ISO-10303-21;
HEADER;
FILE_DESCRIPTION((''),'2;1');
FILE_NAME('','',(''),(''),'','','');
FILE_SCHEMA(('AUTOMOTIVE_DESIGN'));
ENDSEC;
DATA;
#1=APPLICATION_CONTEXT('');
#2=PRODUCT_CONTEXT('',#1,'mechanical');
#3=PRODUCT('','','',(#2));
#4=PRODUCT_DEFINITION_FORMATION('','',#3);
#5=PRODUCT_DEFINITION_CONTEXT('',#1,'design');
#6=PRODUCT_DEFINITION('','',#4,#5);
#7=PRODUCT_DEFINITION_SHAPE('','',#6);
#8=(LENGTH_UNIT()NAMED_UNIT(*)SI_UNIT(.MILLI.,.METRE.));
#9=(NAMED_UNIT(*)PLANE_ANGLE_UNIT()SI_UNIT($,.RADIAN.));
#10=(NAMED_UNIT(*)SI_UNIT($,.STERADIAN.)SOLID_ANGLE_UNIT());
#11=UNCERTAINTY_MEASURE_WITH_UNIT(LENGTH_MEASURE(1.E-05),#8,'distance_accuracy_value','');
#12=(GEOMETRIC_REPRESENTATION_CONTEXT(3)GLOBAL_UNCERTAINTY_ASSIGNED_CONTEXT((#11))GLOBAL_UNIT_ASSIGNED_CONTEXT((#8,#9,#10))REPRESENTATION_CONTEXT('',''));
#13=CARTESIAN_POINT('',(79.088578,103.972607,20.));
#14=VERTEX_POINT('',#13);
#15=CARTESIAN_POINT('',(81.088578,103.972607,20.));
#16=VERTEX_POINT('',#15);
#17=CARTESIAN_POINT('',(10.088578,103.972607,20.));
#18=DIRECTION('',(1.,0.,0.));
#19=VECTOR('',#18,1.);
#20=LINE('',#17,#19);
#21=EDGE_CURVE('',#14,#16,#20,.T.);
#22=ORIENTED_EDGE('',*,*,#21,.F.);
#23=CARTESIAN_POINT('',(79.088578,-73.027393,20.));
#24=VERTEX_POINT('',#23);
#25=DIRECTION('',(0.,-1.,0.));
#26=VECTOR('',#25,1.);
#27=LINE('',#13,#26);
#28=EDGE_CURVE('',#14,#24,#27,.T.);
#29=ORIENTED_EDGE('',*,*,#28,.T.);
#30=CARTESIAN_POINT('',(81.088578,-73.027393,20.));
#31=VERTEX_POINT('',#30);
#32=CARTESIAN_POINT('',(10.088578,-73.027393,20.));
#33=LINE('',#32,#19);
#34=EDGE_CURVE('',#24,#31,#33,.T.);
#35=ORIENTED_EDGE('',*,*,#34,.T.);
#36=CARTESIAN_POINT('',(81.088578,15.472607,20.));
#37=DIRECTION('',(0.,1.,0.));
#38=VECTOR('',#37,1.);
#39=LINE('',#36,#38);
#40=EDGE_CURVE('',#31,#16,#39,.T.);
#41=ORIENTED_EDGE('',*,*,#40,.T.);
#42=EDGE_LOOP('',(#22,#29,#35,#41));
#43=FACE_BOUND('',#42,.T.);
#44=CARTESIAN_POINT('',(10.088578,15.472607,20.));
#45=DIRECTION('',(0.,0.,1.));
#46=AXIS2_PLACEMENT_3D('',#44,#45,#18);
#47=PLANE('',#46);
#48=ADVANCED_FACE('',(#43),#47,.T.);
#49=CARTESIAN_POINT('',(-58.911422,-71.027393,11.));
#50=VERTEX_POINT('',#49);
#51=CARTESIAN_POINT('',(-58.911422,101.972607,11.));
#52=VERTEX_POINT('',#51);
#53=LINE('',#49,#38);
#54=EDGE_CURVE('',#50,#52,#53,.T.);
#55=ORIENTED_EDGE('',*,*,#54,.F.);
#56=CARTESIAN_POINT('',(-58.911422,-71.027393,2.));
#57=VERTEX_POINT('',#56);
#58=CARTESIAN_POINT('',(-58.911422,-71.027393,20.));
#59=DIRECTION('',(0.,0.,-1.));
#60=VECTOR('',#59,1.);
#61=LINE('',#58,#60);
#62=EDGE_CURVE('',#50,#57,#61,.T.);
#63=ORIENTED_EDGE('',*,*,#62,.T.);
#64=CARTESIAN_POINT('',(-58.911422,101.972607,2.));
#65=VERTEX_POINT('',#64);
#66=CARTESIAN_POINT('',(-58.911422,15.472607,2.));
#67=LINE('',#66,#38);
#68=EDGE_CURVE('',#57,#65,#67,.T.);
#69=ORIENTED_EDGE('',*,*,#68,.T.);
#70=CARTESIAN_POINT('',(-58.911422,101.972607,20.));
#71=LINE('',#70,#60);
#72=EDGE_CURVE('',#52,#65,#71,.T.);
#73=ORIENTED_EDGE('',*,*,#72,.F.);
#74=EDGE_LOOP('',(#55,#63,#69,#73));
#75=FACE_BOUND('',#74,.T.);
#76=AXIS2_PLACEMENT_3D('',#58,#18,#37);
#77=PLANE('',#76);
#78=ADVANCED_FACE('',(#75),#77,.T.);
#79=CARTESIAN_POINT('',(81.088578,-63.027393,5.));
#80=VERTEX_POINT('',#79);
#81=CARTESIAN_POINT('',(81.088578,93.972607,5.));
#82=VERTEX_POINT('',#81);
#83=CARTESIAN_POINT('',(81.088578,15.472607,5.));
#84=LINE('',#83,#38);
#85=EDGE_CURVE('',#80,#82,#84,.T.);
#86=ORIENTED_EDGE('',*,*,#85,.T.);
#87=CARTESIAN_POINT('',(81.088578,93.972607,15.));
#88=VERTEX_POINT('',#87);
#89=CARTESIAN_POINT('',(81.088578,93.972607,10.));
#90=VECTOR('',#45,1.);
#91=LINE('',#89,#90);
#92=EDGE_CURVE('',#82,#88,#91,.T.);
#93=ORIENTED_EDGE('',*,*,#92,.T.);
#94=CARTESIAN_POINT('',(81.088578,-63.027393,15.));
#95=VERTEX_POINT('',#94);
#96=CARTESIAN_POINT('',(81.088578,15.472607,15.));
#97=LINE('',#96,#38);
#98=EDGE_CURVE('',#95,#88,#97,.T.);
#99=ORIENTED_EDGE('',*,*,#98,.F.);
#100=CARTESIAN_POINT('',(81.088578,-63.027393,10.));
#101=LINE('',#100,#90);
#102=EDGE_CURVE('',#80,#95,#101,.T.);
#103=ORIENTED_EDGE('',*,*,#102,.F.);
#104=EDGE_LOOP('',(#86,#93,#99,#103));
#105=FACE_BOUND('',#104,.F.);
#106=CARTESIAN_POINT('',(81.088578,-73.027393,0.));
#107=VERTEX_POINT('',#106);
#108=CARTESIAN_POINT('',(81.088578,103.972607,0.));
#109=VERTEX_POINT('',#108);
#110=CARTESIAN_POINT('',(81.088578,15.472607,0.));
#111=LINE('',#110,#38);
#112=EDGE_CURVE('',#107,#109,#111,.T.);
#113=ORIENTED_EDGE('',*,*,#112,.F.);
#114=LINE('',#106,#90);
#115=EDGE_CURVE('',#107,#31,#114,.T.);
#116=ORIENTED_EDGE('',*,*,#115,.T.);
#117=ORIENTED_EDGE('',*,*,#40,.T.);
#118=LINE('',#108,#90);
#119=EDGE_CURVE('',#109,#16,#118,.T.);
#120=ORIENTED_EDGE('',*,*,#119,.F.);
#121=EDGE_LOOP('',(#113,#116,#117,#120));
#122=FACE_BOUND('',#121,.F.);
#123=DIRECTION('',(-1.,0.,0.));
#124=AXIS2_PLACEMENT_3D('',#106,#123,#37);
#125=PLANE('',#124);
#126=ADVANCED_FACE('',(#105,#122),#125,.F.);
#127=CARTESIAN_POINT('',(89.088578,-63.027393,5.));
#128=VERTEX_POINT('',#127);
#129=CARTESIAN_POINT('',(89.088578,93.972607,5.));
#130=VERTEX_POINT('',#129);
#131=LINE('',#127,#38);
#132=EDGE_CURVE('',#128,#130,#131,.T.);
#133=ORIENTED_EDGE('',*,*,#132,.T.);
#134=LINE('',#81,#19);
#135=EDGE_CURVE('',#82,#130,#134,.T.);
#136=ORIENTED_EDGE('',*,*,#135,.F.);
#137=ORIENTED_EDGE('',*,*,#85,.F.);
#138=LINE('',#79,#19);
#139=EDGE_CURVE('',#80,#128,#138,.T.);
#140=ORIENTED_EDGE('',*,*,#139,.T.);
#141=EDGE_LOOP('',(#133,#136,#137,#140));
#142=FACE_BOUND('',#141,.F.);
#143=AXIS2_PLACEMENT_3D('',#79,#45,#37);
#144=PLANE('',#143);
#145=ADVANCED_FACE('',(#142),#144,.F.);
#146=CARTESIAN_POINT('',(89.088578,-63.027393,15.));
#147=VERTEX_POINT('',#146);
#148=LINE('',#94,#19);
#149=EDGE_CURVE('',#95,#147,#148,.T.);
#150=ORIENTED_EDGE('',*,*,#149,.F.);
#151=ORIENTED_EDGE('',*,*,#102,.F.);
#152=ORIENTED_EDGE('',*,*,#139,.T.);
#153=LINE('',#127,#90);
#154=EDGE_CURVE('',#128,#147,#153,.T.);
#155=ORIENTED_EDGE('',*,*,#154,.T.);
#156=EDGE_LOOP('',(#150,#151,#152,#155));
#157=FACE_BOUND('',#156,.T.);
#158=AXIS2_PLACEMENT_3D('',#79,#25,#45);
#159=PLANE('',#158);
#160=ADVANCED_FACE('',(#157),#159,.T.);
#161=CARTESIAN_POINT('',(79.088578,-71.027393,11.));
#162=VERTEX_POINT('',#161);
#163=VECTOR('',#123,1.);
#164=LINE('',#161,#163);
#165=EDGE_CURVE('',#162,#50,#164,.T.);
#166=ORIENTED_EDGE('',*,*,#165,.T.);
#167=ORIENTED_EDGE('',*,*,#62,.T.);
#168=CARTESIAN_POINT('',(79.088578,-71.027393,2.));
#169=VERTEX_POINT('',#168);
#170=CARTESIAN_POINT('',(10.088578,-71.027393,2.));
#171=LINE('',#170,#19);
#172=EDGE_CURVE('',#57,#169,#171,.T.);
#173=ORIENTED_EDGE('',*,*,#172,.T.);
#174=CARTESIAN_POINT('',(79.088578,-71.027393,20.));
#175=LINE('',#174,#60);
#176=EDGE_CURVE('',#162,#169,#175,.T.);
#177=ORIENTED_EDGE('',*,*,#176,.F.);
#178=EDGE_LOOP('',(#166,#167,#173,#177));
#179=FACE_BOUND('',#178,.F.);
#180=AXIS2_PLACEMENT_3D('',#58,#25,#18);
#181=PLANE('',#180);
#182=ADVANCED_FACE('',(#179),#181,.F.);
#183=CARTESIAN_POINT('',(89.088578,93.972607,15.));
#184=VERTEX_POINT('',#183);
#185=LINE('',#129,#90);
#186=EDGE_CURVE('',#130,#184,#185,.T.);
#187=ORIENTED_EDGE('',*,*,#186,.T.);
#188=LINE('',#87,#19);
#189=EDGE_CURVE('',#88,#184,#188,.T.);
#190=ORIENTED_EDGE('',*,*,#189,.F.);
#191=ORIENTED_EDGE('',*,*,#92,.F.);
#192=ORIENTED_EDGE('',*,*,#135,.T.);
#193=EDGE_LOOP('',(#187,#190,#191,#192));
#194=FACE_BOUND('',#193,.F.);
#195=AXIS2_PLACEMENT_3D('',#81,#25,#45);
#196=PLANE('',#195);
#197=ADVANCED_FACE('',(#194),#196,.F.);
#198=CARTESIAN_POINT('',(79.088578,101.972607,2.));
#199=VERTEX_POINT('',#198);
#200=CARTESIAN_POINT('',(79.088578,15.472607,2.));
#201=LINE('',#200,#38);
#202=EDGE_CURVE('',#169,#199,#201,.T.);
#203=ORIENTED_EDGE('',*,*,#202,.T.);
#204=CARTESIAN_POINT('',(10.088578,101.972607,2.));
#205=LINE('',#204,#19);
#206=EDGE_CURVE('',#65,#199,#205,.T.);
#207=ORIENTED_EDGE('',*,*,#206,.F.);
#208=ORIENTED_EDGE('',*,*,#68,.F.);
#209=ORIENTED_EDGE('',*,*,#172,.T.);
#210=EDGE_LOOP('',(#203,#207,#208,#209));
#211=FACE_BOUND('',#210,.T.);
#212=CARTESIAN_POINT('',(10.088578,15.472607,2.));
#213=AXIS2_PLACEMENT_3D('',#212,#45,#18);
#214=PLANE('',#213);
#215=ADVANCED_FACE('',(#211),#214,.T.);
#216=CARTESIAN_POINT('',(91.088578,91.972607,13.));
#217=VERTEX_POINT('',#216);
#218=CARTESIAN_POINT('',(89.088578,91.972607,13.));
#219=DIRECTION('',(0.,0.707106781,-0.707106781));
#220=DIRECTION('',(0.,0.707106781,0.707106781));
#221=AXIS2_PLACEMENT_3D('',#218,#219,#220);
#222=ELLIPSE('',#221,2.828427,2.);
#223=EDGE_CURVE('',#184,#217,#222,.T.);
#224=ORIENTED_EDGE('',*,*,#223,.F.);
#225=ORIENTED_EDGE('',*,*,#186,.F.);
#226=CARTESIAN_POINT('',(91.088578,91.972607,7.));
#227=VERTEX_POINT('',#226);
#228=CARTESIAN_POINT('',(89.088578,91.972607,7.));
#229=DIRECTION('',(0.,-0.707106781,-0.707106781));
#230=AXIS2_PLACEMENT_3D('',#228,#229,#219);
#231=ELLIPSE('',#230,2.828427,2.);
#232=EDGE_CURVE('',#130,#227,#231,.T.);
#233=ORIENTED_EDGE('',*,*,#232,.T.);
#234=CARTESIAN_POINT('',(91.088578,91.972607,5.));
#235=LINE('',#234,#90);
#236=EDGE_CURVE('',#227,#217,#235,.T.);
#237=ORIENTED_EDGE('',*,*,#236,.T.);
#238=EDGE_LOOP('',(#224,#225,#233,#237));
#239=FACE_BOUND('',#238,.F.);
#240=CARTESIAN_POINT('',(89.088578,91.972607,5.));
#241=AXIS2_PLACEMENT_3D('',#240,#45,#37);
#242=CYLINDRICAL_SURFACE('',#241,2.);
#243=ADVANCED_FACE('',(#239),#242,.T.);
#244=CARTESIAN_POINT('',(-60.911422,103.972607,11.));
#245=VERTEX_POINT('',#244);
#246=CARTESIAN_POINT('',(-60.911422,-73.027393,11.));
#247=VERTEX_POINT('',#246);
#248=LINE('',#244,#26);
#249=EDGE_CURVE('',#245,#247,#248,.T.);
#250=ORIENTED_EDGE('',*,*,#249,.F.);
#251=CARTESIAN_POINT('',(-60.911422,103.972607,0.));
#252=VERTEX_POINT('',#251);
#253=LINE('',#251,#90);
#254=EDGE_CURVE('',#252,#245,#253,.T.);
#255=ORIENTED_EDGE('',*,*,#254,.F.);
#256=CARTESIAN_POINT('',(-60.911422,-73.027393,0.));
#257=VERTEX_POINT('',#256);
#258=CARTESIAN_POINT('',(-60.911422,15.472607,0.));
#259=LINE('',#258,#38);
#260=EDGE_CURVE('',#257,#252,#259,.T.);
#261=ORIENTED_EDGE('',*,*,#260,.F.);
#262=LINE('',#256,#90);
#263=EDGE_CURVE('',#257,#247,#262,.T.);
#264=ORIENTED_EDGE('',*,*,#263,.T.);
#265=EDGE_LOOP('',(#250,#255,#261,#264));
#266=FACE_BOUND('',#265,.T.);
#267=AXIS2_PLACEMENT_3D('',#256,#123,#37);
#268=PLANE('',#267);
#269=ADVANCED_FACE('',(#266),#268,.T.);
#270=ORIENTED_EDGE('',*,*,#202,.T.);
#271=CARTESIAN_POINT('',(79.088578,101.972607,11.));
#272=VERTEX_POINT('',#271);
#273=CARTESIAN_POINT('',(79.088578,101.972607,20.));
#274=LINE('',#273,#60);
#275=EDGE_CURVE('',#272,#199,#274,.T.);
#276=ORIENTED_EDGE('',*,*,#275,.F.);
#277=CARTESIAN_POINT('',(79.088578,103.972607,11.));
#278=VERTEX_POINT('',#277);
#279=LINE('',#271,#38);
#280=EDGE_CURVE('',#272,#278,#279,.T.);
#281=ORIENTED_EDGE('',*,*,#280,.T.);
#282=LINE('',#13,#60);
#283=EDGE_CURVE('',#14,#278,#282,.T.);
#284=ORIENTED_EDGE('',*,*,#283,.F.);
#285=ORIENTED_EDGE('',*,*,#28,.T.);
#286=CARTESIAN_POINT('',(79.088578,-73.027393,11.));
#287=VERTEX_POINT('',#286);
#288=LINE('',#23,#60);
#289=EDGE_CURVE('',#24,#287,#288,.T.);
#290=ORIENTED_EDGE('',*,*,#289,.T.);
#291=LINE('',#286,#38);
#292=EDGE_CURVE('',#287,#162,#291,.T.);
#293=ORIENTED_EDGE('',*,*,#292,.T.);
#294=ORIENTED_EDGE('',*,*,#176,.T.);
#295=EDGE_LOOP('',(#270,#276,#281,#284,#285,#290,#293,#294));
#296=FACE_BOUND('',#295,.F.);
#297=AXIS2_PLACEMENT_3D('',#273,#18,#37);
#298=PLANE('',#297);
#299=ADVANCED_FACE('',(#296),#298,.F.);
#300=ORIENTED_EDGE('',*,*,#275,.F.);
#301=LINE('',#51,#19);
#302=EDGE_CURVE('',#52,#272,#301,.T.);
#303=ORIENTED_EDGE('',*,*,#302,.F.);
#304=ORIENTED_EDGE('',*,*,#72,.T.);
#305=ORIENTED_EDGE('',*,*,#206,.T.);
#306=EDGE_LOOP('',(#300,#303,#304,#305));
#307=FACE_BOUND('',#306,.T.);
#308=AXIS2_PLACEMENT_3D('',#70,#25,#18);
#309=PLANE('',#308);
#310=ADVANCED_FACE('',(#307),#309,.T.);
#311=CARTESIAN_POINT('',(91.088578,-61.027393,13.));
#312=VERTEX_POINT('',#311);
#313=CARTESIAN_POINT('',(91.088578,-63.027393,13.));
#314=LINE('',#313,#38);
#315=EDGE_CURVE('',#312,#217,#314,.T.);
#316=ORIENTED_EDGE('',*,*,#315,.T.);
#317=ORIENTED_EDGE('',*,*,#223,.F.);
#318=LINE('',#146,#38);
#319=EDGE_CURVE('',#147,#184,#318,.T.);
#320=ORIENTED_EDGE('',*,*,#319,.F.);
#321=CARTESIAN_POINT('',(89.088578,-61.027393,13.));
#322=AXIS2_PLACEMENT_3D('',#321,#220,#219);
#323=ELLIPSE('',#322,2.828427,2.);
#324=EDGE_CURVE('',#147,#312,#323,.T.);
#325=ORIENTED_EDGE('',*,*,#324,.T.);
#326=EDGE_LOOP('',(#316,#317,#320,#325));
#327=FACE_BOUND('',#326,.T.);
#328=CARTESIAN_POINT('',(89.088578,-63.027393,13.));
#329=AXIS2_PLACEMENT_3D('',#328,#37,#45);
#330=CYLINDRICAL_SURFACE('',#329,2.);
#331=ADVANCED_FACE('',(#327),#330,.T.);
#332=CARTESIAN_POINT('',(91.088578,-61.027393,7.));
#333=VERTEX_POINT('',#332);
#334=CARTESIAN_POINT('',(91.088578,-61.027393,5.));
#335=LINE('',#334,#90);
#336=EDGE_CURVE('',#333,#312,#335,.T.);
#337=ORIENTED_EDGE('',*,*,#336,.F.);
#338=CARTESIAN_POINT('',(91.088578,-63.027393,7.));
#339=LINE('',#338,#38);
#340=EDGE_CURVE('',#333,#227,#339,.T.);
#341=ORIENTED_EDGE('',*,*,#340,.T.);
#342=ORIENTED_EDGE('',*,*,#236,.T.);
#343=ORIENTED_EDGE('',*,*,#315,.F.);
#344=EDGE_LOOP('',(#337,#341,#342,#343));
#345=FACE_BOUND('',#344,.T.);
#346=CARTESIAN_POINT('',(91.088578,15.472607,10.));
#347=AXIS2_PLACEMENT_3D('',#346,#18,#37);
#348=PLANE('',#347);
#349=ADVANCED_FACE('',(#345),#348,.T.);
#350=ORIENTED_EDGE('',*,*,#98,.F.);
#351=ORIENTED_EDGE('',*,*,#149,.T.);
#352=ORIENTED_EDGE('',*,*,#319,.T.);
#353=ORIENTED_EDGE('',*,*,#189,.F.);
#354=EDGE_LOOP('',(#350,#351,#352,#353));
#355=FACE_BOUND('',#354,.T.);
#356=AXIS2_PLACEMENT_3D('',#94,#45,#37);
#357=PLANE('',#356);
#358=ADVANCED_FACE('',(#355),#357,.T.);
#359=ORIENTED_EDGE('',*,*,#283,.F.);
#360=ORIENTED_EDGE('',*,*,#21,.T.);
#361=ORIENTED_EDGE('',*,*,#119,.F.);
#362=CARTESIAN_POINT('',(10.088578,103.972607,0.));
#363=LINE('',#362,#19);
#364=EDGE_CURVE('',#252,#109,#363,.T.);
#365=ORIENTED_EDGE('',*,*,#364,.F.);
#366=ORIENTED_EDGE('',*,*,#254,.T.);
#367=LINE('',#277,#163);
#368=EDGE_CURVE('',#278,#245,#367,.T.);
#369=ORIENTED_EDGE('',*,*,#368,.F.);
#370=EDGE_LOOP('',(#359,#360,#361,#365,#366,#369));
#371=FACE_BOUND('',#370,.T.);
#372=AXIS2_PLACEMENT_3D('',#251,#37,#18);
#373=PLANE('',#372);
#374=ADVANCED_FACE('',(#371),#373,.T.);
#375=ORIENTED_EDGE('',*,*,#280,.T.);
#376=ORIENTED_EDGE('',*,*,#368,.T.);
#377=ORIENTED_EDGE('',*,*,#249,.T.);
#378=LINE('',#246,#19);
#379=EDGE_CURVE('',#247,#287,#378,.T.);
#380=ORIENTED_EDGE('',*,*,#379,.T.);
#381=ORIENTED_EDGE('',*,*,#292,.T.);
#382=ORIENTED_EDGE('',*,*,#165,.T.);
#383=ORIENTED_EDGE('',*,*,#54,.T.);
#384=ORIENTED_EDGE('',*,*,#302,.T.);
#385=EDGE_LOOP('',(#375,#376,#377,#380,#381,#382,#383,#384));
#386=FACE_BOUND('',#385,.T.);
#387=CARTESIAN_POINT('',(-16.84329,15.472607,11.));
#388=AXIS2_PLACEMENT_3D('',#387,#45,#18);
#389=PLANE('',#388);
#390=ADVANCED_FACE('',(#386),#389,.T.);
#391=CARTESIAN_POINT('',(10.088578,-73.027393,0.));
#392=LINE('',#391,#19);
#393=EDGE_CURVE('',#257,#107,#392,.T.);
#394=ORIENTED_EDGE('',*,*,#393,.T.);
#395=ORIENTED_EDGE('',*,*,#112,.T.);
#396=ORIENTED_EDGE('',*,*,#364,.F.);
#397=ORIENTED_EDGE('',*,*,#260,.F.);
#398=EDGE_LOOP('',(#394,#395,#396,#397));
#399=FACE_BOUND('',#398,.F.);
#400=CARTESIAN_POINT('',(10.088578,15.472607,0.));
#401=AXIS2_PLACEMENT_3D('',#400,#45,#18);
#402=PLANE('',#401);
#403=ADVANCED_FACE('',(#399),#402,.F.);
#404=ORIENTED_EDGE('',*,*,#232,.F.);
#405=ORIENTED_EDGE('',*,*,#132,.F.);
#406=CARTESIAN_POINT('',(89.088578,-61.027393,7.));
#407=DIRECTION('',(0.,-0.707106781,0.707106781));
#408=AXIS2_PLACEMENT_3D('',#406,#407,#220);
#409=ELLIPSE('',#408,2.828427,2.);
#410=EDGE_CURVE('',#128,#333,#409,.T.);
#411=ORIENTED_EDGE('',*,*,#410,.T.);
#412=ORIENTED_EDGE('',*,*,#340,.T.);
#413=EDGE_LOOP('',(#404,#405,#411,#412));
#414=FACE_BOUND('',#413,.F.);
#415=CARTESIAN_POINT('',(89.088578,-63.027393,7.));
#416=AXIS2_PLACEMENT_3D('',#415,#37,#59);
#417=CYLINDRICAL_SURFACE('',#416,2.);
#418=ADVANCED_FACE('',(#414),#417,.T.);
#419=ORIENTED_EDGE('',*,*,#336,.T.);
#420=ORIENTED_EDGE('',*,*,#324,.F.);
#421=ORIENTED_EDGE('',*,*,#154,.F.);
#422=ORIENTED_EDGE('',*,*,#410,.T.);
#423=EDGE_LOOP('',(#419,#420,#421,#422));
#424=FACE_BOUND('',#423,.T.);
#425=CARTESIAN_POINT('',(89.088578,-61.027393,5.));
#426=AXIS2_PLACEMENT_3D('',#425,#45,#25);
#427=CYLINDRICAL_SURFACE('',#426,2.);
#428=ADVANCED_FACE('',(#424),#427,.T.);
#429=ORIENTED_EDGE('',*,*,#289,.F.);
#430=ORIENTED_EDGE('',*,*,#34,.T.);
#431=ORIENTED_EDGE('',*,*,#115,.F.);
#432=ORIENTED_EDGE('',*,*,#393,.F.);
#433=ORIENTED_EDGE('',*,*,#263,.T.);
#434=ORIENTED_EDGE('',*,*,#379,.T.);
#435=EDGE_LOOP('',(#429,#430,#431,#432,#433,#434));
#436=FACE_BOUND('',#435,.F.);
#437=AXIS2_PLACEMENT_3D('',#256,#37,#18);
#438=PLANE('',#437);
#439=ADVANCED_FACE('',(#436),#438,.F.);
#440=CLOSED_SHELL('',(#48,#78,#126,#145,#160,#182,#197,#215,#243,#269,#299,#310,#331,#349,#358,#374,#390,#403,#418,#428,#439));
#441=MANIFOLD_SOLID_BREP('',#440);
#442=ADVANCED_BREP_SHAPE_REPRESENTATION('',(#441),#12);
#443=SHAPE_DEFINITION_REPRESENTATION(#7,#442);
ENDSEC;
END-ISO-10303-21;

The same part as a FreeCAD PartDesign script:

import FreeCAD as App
import Part
import Sketcher


def edges_at(feature, points):
    """Names of the edges that pass closest to the given points."""
    edges = feature.Shape.Edges
    near = lambda p: min(range(len(edges)), key=lambda i: edges[i].distToShape(Part.Vertex(*p))[0])
    return sorted({f"Edge{near(p) + 1}" for p in points})


def add_polygon(sketch, points):
    """Adds a closed chain of lines whose ends are joined by coincident constraints."""
    first, n = sketch.GeometryCount, len(points)
    for a, b in zip(points, points[1:] + points[:1]):
        sketch.addGeometry(Part.LineSegment(App.Vector(*a, 0), App.Vector(*b, 0)), False)
    for i in range(n):
        sketch.addConstraint(Sketcher.Constraint("Coincident", first + i, 2, first + (i + 1) % n, 1))

doc = App.newDocument("Part")
body = doc.addObject("PartDesign::Body", "Body")

# Sketch on XY plane
sketch1 = body.newObject("Sketcher::SketchObject", "Sketch")
sketch1.AttachmentSupport = (doc.getObject("XY_Plane"), [""])
sketch1.MapMode = "FlatFace"
add_polygon(sketch1, [(-61, 104), (-61, -73), (81, -73), (81, 104)])  # lines 0-3
sketch1.addConstraint([
    Sketcher.Constraint("Vertical", 0),
    Sketcher.Constraint("Horizontal", 1),
    Sketcher.Constraint("Vertical", 2),
    Sketcher.Constraint("Horizontal", 3),
    Sketcher.Constraint("DistanceX", 1, 1, 1, 2, 142.0),
    Sketcher.Constraint("DistanceY", 0, 2, 0, 1, 177.0),
    Sketcher.Constraint("DistanceX", -1, 1, 1, 2, 81.088578),
    Sketcher.Constraint("DistanceY", 0, 2, -1, 1, 73.027393),
])
pad1 = body.newObject("PartDesign::Pad", "Pad")
pad1.Profile = sketch1
pad1.Length = 20

# Sketch on XY plane
sketch2 = body.newObject("Sketcher::SketchObject", "Sketch001")
sketch2.AttachmentSupport = (doc.getObject("XY_Plane"), [""])
sketch2.MapMode = "FlatFace"
sketch2.AttachmentOffset = App.Placement(App.Vector(0, 0, 20), App.Rotation())
add_polygon(sketch2, [(-59, 102), (-59, -71), (79, -71), (79, 102)])  # lines 0-3
sketch2.addConstraint([
    Sketcher.Constraint("Vertical", 0),
    Sketcher.Constraint("Horizontal", 1),
    Sketcher.Constraint("Vertical", 2),
    Sketcher.Constraint("Horizontal", 3),
    Sketcher.Constraint("DistanceX", 1, 1, 1, 2, 138.0),
    Sketcher.Constraint("DistanceY", 0, 2, 0, 1, 173.0),
    Sketcher.Constraint("DistanceX", -1, 1, 1, 2, 79.088578),
    Sketcher.Constraint("DistanceY", 0, 2, -1, 1, 71.027393),
])
pocket1 = body.newObject("PartDesign::Pocket", "Pocket")
pocket1.Profile = sketch2
pocket1.Length = 18

# Sketch on XY plane
sketch3 = body.newObject("Sketcher::SketchObject", "Sketch002")
sketch3.AttachmentSupport = (doc.getObject("XY_Plane"), [""])
sketch3.MapMode = "FlatFace"
sketch3.AttachmentOffset = App.Placement(App.Vector(0, 0, 20), App.Rotation())
add_polygon(sketch3, [(-60.9, -73), (79.1, -73), (79.1, -71), (-58.9, -71), (-58.9, 102), (79.1, 102), (79.1, 104), (-60.9, 104)])  # lines 0-7
sketch3.addConstraint([
    Sketcher.Constraint("Horizontal", 0),
    Sketcher.Constraint("Vertical", 1),
    Sketcher.Constraint("Horizontal", 2),
    Sketcher.Constraint("Vertical", 3),
    Sketcher.Constraint("Horizontal", 4),
    Sketcher.Constraint("Vertical", 5),
    Sketcher.Constraint("Horizontal", 6),
    Sketcher.Constraint("Vertical", 7),
    Sketcher.Constraint("Vertical", 1, 2, 4, 2),
    Sketcher.Constraint("Equal", 1, 5),
    Sketcher.Constraint("DistanceX", 0, 1, 0, 2, 140.0),
    Sketcher.Constraint("DistanceX", 2, 2, 2, 1, 138.0),
    Sketcher.Constraint("DistanceY", 1, 1, 1, 2, 2.0),
    Sketcher.Constraint("DistanceY", 3, 1, 3, 2, 173.0),
    Sketcher.Constraint("DistanceX", -1, 1, 0, 2, 79.088578),
    Sketcher.Constraint("DistanceY", 0, 2, -1, 1, 73.027393),
])
pocket2 = body.newObject("PartDesign::Pocket", "Pocket001")
pocket2.Profile = sketch3
pocket2.Length = 9

# Sketch on YZ plane
sketch4 = body.newObject("Sketcher::SketchObject", "Sketch003")
sketch4.AttachmentSupport = (doc.getObject("YZ_Plane"), [""])
sketch4.MapMode = "FlatFace"
sketch4.AttachmentOffset = App.Placement(App.Vector(0, 0, 81.088578), App.Rotation())
add_polygon(sketch4, [(-63, 15), (-63, 5), (94, 5), (94, 15)])  # lines 0-3
sketch4.addConstraint([
    Sketcher.Constraint("Vertical", 0),
    Sketcher.Constraint("Horizontal", 1),
    Sketcher.Constraint("Vertical", 2),
    Sketcher.Constraint("Horizontal", 3),
    Sketcher.Constraint("DistanceX", 1, 1, 1, 2, 157.0),
    Sketcher.Constraint("DistanceY", 0, 2, 0, 1, 10.0),
    Sketcher.Constraint("DistanceY", -1, 1, 0, 2, 5.0),
    Sketcher.Constraint("DistanceX", 0, 2, -1, 1, 63.027393),
])
pad2 = body.newObject("PartDesign::Pad", "Pad001")
pad2.Profile = sketch4
pad2.Length = 10
doc.recompute()

fillet = body.newObject("PartDesign::Fillet", "Fillet")
fillet.Base = (pad2, edges_at(pad2, [
    (91.089, 15.473, 15),
    (91.089, 15.473, 5),
    (91.089, -63.027, 10),
    (91.089, 93.973, 10),
]))
fillet.Radius = 2

doc.recompute()
